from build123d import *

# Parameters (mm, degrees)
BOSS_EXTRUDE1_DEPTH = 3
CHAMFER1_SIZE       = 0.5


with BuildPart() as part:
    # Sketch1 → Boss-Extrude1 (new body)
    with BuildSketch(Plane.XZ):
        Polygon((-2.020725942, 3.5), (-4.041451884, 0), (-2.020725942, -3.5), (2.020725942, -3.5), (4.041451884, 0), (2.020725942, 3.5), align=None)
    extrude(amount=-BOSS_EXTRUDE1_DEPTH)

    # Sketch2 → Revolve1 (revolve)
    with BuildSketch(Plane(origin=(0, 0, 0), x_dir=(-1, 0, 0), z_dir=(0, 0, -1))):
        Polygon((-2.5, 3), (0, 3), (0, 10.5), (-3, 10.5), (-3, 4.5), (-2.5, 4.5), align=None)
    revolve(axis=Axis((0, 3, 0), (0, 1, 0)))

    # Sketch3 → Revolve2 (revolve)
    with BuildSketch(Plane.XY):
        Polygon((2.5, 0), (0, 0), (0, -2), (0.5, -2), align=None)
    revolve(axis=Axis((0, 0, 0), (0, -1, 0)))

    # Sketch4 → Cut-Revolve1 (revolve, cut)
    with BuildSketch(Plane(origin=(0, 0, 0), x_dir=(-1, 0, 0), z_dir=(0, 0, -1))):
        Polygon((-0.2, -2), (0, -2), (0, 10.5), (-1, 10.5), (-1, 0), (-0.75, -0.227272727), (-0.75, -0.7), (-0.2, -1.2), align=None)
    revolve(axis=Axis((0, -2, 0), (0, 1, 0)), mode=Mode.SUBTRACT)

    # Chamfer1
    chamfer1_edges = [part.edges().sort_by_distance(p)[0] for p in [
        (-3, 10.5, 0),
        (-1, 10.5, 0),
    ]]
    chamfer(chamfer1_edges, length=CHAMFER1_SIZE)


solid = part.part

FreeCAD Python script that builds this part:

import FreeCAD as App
import Part
import Sketcher
from FreeCAD import Vector
Q = App.Units.Quantity


def edges_at(feature, points):
    """Names of the edges that pass closest to the given points."""
    edges = feature.Shape.Edges
    near = lambda p: min(range(len(edges)), key=lambda i: edges[i].distToShape(Part.Vertex(*p))[0])
    return sorted({f"Edge{near(p) + 1}" for p in points})

doc = App.newDocument("Part")
params = doc.addObject("Spreadsheet::Sheet", "Params")
for row, (alias, value) in enumerate([
    ("pad1_length", "3 mm"),
    ("sketch2_width", "3 mm"),
    ("sketch2_height", "6 mm"),
    ("sketch2_width2", "2.5 mm"),
    ("sketch2_height2", "7.5 mm"),
    ("revolution_angle", "360 deg"),
    ("sketch3_height", "2 mm"),
    ("sketch3_width", "2.5 mm"),
    ("revolution2_angle", "360 deg"),
    ("sketch4_width", "1 mm"),
    ("sketch4_width2", "0.2 mm"),
    ("sketch4_height", "12.5 mm"),
    ("sketch4_height2", "10.5 mm"),
    ("sketch4_height3", "0.8 mm"),
    ("groove_angle", "360 deg"),
    ("chamfer_size", "0.5 mm"),
], start=1):
    params.set(f"A{row}", alias)
    params.set(f"B{row}", "=" + value)
    params.setAlias(f"B{row}", alias)

body = doc.addObject("PartDesign::Body", "Body")

# Sketch on XZ plane
sketch1 = body.newObject("Sketcher::SketchObject", "Sketch")
sketch1.AttachmentSupport = (doc.getObject("XZ_Plane"), [""])
sketch1.MapMode = "FlatFace"
sketch1.addGeometry(Part.LineSegment(Vector(-2, 3.5, 0), Vector(-4, 0, 0)), False)
sketch1.addGeometry(Part.LineSegment(Vector(-4, 0, 0), Vector(-2, -3.5, 0)), False)
sketch1.addGeometry(Part.LineSegment(Vector(-2, -3.5, 0), Vector(2, -3.5, 0)), False)
sketch1.addGeometry(Part.LineSegment(Vector(2, -3.5, 0), Vector(4, 0, 0)), False)
sketch1.addGeometry(Part.LineSegment(Vector(4, 0, 0), Vector(2, 3.5, 0)), False)
sketch1.addGeometry(Part.LineSegment(Vector(2, 3.5, 0), Vector(-2, 3.5, 0)), False)
sketch1.addConstraint(Sketcher.Constraint("Coincident", 0, 2, 1, 1))
sketch1.addConstraint(Sketcher.Constraint("Coincident", 1, 2, 2, 1))
sketch1.addConstraint(Sketcher.Constraint("Coincident", 2, 2, 3, 1))
sketch1.addConstraint(Sketcher.Constraint("Coincident", 3, 2, 4, 1))
sketch1.addConstraint(Sketcher.Constraint("Coincident", 4, 2, 5, 1))
sketch1.addConstraint(Sketcher.Constraint("Coincident", 5, 2, 0, 1))
sketch1.addConstraint(Sketcher.Constraint("Horizontal", 2))
sketch1.addConstraint(Sketcher.Constraint("Horizontal", 5))
sketch1.addConstraint(Sketcher.Constraint("Symmetric", 0, 2, 3, 2, -1, 1))
sketch1.addConstraint(Sketcher.Constraint("Symmetric", 1, 2, 4, 2, -1, 1))
sketch1.addConstraint(Sketcher.Constraint("PointOnObject", 0, 2, -1))
sketch1.addConstraint(Sketcher.Constraint("Parallel", 0, 3))
sketch1.addConstraint(Sketcher.Constraint("Vertical", 2, 2, 4, 2))
sketch1.addConstraint(Sketcher.Constraint("Angle", 0, Q("-120 deg")))
sketch1.addConstraint(Sketcher.Constraint("DistanceY", 2, 2, 4, 2, 7.0))
sketch1.addConstraint(Sketcher.Constraint("DistanceX", 2, 1, 2, 2, 4.041452))
pad1 = body.newObject("PartDesign::Pad", "Pad")
pad1.Profile = sketch1
pad1.setExpression("Length", "Params.pad1_length")
pad1.Reversed = True

# Sketch on XY plane
sketch2 = body.newObject("Sketcher::SketchObject", "Sketch001")
sketch2.AttachmentSupport = (doc.getObject("XY_Plane"), [""])
sketch2.MapMode = "FlatFace"
sketch2.addGeometry(Part.LineSegment(Vector(2.5, 3, 0), Vector(0, 3, 0)), False)
sketch2.addGeometry(Part.LineSegment(Vector(0, 3, 0), Vector(0, 10.5, 0)), False)
sketch2.addGeometry(Part.LineSegment(Vector(0, 10.5, 0), Vector(3, 10.5, 0)), False)
sketch2.addGeometry(Part.LineSegment(Vector(3, 10.5, 0), Vector(3, 4.5, 0)), False)
sketch2.addGeometry(Part.LineSegment(Vector(3, 4.5, 0), Vector(2.5, 4.5, 0)), False)
sketch2.addGeometry(Part.LineSegment(Vector(2.5, 4.5, 0), Vector(2.5, 3, 0)), False)
sketch2.addConstraint(Sketcher.Constraint("Coincident", 0, 2, 1, 1))
sketch2.addConstraint(Sketcher.Constraint("Coincident", 1, 2, 2, 1))
sketch2.addConstraint(Sketcher.Constraint("Coincident", 2, 2, 3, 1))
sketch2.addConstraint(Sketcher.Constraint("Coincident", 3, 2, 4, 1))
sketch2.addConstraint(Sketcher.Constraint("Coincident", 4, 2, 5, 1))
sketch2.addConstraint(Sketcher.Constraint("Coincident", 5, 2, 0, 1))
sketch2.addConstraint(Sketcher.Constraint("Horizontal", 0))
sketch2.addConstraint(Sketcher.Constraint("Vertical", 1))
sketch2.addConstraint(Sketcher.Constraint("Horizontal", 2))
sketch2.addConstraint(Sketcher.Constraint("Vertical", 3))
sketch2.addConstraint(Sketcher.Constraint("Horizontal", 4))
sketch2.addConstraint(Sketcher.Constraint("Vertical", 5))
sketch2.addConstraint(Sketcher.Constraint("PointOnObject", 0, 2, -2))
sketch2.addConstraint(Sketcher.Constraint("DistanceX", 2, 1, 2, 2, 3.0))
sketch2.addConstraint(Sketcher.Constraint("DistanceY", 3, 2, 3, 1, 6.0))
sketch2.addConstraint(Sketcher.Constraint("DistanceX", 0, 2, 0, 1, 2.5))
sketch2.addConstraint(Sketcher.Constraint("DistanceY", 1, 1, 1, 2, 7.5))
sketch2.addConstraint(Sketcher.Constraint("DistanceY", -1, 1, 0, 2, 3.0))
sketch2.setExpression("Constraints[13]", "Params.sketch2_width")
sketch2.setExpression("Constraints[14]", "Params.sketch2_height")
sketch2.setExpression("Constraints[15]", "Params.sketch2_width2")
sketch2.setExpression("Constraints[16]", "Params.sketch2_height2")
revolution = body.newObject("PartDesign::Revolution", "Revolution")
revolution.Profile = sketch2
revolution.ReferenceAxis = (sketch2, ["V_Axis"])
revolution.setExpression("Angle", "Params.revolution_angle")

# Sketch on XY plane
sketch3 = body.newObject("Sketcher::SketchObject", "Sketch002")
sketch3.AttachmentSupport = (doc.getObject("XY_Plane"), [""])
sketch3.MapMode = "FlatFace"
sketch3.addGeometry(Part.LineSegment(Vector(2.5, 0, 0), Vector(0, 0, 0)), False)
sketch3.addGeometry(Part.LineSegment(Vector(0, 0, 0), Vector(0, -2, 0)), False)
sketch3.addGeometry(Part.LineSegment(Vector(0, -2, 0), Vector(0.5, -2, 0)), False)
sketch3.addGeometry(Part.LineSegment(Vector(0.5, -2, 0), Vector(2.5, 0, 0)), False)
sketch3.addConstraint(Sketcher.Constraint("Coincident", 0, 2, 1, 1))
sketch3.addConstraint(Sketcher.Constraint("Coincident", 1, 2, 2, 1))
sketch3.addConstraint(Sketcher.Constraint("Coincident", 2, 2, 3, 1))
sketch3.addConstraint(Sketcher.Constraint("Coincident", 3, 2, 0, 1))
sketch3.addConstraint(Sketcher.Constraint("Horizontal", 0))
sketch3.addConstraint(Sketcher.Constraint("Vertical", 1))
sketch3.addConstraint(Sketcher.Constraint("Horizontal", 2))
sketch3.addConstraint(Sketcher.Constraint("Coincident", 0, 2, -1, 1))
sketch3.addConstraint(Sketcher.Constraint("DistanceY", 1, 2, 1, 1, 2.0))
sketch3.addConstraint(Sketcher.Constraint("Angle", 3, Q("45 deg")))
sketch3.addConstraint(Sketcher.Constraint("DistanceX", 0, 2, 0, 1, 2.5))
sketch3.setExpression("Constraints[8]", "Params.sketch3_height")
sketch3.setExpression("Constraints[10]", "Params.sketch3_width")
revolution2 = body.newObject("PartDesign::Revolution", "Revolution001")
revolution2.Profile = sketch3
revolution2.ReferenceAxis = (sketch3, ["V_Axis"])
revolution2.setExpression("Angle", "Params.revolution2_angle")

# Sketch on XY plane
sketch4 = body.newObject("Sketcher::SketchObject", "Sketch003")
sketch4.AttachmentSupport = (doc.getObject("XY_Plane"), [""])
sketch4.MapMode = "FlatFace"
sketch4.addGeometry(Part.LineSegment(Vector(0.2, -2, 0), Vector(0, -2, 0)), False)
sketch4.addGeometry(Part.LineSegment(Vector(0, -2, 0), Vector(0, 10.5, 0)), False)
sketch4.addGeometry(Part.LineSegment(Vector(0, 10.5, 0), Vector(1, 10.5, 0)), False)
sketch4.addGeometry(Part.LineSegment(Vector(1, 10.5, 0), Vector(1, 0, 0)), False)
sketch4.addGeometry(Part.LineSegment(Vector(1, 0, 0), Vector(0.75, -0.23, 0)), False)
sketch4.addGeometry(Part.LineSegment(Vector(0.75, -0.23, 0), Vector(0.75, -0.7, 0)), False)
sketch4.addGeometry(Part.LineSegment(Vector(0.75, -0.7, 0), Vector(0.2, -1.2, 0)), False)
sketch4.addGeometry(Part.LineSegment(Vector(0.2, -1.2, 0), Vector(0.2, -2, 0)), False)
sketch4.addConstraint(Sketcher.Constraint("Coincident", 0, 2, 1, 1))
sketch4.addConstraint(Sketcher.Constraint("Coincident", 1, 2, 2, 1))
sketch4.addConstraint(Sketcher.Constraint("Coincident", 2, 2, 3, 1))
sketch4.addConstraint(Sketcher.Constraint("Coincident", 3, 2, 4, 1))
sketch4.addConstraint(Sketcher.Constraint("Coincident", 4, 2, 5, 1))
sketch4.addConstraint(Sketcher.Constraint("Coincident", 5, 2, 6, 1))
sketch4.addConstraint(Sketcher.Constraint("Coincident", 6, 2, 7, 1))
sketch4.addConstraint(Sketcher.Constraint("Coincident", 7, 2, 0, 1))
sketch4.addConstraint(Sketcher.Constraint("Horizontal", 0))
sketch4.addConstraint(Sketcher.Constraint("Vertical", 1))
sketch4.addConstraint(Sketcher.Constraint("Horizontal", 2))
sketch4.addConstraint(Sketcher.Constraint("Vertical", 3))
sketch4.addConstraint(Sketcher.Constraint("Vertical", 5))
sketch4.addConstraint(Sketcher.Constraint("Vertical", 7))
sketch4.addConstraint(Sketcher.Constraint("PointOnObject", 0, 2, -2))
sketch4.addConstraint(Sketcher.Constraint("PointOnObject", 3, 2, -1))
sketch4.addConstraint(Sketcher.Constraint("Parallel", 4, 6))
sketch4.addConstraint(Sketcher.Constraint("DistanceX", 2, 1, 2, 2, 1.0))
sketch4.addConstraint(Sketcher.Constraint("DistanceX", 0, 2, 0, 1, 0.2))
sketch4.addConstraint(Sketcher.Constraint("DistanceY", 1, 1, 1, 2, 12.5))
sketch4.addConstraint(Sketcher.Constraint("DistanceY", 3, 2, 3, 1, 10.5))
sketch4.addConstraint(Sketcher.Constraint("DistanceY", 7, 2, 7, 1, 0.8))
sketch4.addConstraint(Sketcher.Constraint("DistanceY", 5, 2, -1, 1, 0.7))
sketch4.addConstraint(Sketcher.Constraint("DistanceX", -1, 1, 4, 2, 0.75))
sketch4.setExpression("Constraints[17]", "Params.sketch4_width")
sketch4.setExpression("Constraints[18]", "Params.sketch4_width2")
sketch4.setExpression("Constraints[19]", "Params.sketch4_height")
sketch4.setExpression("Constraints[20]", "Params.sketch4_height2")
sketch4.setExpression("Constraints[21]", "Params.sketch4_height3")
groove = body.newObject("PartDesign::Groove", "Groove")
groove.Profile = sketch4
groove.ReferenceAxis = (sketch4, ["V_Axis"])
groove.setExpression("Angle", "Params.groove_angle")
doc.recompute()

chamfer = body.newObject("PartDesign::Chamfer", "Chamfer")
chamfer.Base = (groove, edges_at(groove, [(-3, 10.5, 0), (-1, 10.5, 0)]))
chamfer.setExpression("Size", "Params.chamfer_size")

doc.recompute()
